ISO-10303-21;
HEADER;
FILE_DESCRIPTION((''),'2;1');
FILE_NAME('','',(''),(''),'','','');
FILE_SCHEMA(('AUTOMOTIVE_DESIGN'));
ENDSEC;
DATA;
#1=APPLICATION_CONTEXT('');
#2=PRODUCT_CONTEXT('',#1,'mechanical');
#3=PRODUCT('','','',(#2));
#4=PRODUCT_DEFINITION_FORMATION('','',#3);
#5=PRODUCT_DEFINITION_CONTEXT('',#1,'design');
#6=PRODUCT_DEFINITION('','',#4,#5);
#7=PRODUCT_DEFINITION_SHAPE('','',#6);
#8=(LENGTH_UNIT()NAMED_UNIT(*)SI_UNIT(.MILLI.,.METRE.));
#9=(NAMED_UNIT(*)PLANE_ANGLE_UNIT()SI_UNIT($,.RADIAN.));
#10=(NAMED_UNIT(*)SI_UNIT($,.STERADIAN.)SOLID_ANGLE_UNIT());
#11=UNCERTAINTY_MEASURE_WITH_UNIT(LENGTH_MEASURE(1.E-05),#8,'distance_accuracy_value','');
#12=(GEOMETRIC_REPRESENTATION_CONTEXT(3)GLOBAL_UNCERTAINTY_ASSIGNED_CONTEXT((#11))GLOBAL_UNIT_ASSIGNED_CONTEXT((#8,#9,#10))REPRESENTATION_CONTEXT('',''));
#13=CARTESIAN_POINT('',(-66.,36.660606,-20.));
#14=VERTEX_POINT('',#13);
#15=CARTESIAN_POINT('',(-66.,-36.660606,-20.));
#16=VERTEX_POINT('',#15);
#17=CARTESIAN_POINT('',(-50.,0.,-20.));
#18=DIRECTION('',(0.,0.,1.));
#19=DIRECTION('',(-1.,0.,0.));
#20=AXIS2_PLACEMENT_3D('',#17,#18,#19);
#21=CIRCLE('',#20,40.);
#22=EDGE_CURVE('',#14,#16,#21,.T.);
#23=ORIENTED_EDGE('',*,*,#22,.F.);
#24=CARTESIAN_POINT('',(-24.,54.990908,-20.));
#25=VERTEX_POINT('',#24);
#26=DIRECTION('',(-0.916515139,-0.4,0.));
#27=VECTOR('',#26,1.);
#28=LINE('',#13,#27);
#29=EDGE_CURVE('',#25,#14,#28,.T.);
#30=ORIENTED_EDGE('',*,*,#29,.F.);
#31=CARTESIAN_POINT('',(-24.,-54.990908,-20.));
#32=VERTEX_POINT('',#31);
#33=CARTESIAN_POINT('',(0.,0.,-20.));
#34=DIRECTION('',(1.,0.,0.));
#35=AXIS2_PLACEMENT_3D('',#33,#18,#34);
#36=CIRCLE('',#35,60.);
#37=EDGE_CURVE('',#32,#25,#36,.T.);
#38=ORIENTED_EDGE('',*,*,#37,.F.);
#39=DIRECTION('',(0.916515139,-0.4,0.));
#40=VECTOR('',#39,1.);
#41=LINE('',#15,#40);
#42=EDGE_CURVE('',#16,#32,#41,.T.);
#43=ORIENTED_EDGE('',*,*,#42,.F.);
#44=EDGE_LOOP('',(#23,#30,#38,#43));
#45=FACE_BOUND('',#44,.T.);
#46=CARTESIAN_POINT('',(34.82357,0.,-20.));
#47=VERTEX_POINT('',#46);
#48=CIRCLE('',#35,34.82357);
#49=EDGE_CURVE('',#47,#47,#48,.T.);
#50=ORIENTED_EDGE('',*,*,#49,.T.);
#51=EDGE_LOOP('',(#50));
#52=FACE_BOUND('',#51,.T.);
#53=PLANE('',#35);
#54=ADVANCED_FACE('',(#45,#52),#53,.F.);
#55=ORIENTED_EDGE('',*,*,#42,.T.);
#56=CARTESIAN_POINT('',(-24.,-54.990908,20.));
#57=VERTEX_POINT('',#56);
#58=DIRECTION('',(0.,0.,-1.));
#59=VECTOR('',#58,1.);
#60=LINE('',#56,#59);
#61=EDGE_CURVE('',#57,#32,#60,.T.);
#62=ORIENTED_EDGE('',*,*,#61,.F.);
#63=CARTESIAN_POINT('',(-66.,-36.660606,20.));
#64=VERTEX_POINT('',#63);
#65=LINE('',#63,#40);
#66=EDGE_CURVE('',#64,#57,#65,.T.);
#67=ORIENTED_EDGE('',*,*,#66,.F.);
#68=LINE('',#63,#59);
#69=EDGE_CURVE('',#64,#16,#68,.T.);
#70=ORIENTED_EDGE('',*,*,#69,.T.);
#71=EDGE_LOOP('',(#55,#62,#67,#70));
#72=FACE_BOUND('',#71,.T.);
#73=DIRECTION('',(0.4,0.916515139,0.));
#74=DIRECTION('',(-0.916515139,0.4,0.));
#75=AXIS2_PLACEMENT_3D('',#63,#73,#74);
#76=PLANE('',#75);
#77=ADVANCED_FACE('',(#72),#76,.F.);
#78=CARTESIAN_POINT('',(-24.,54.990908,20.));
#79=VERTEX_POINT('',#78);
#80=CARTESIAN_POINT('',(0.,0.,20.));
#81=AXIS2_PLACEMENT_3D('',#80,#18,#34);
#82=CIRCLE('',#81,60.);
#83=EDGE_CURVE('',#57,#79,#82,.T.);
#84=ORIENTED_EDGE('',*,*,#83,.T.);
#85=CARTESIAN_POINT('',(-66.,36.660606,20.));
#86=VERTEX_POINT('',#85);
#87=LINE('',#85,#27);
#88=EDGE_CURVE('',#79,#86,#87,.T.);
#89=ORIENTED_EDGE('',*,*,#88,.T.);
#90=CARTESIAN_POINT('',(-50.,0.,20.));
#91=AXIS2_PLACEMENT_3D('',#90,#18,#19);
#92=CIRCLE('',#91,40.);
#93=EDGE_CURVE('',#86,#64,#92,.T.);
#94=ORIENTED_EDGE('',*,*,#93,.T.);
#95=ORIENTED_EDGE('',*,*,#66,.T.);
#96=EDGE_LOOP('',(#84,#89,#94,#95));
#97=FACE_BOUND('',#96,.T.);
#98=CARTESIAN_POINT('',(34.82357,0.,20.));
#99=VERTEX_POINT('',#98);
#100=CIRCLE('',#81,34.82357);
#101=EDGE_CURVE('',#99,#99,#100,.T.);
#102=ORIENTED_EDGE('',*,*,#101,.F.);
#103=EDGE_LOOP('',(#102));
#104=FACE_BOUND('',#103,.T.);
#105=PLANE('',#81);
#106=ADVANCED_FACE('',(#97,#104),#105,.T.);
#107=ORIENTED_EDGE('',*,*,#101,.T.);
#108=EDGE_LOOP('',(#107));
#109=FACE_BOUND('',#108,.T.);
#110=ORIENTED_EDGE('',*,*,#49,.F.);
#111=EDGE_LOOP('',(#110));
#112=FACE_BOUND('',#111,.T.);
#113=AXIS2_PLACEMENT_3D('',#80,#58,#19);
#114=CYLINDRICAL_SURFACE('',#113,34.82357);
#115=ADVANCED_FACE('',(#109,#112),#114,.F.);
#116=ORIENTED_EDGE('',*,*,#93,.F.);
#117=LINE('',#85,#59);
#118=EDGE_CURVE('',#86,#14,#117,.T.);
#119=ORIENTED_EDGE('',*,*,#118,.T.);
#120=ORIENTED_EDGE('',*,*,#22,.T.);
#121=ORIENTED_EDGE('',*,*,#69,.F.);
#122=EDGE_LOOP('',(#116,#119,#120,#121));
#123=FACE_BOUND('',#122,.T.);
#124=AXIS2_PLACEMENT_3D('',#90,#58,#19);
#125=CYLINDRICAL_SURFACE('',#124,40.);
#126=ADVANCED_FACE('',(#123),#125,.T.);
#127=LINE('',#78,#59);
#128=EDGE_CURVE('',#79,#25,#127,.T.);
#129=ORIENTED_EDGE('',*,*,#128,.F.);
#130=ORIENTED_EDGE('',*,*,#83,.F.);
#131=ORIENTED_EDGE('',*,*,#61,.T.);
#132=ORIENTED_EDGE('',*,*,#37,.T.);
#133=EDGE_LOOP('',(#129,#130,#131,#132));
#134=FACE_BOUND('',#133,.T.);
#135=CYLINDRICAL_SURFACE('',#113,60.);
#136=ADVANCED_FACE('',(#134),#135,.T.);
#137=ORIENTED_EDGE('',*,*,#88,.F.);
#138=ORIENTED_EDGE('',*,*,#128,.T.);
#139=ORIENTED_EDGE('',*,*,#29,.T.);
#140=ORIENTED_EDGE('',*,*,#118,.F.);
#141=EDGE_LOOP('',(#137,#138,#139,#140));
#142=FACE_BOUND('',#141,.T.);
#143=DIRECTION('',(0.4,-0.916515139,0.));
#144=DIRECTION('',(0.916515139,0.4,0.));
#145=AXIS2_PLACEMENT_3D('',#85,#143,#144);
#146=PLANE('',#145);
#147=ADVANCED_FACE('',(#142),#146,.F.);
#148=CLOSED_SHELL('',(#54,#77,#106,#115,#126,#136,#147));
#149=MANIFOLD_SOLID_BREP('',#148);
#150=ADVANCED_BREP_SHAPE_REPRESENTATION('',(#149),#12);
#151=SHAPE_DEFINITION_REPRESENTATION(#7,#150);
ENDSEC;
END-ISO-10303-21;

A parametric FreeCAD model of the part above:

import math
import FreeCAD as App
import Part
import Sketcher
from FreeCAD import Vector

doc = App.newDocument("Part")
body = doc.addObject("PartDesign::Body", "Body")

sketch1 = body.newObject("Sketcher::SketchObject", "Sketch")
sketch1.AttachmentSupport = (doc.getObject("XY_Plane"), [""])
sketch1.MapMode = "FlatFace"
sketch1.addGeometry([
    Part.LineSegment(Vector(-24, 55, 0), Vector(-66, 37, 0)),
    Part.ArcOfCircle(Part.Circle(Vector(-50, 0, 0), Vector(0, 0, 1), 40), math.radians(114), math.radians(246)),
    Part.LineSegment(Vector(-66, -37, 0), Vector(-24, -55, 0)),
    Part.ArcOfCircle(Part.Circle(Vector(0, 0, 0), Vector(0, 0, 1), 60), math.radians(-114), math.radians(114)),
    Part.Circle(Vector(0, 0, 0), Vector(0, 0, 1), 35),
], False)
sketch1.addConstraint([
    Sketcher.Constraint("Tangent", 0, 2, 1, 1),
    Sketcher.Constraint("Tangent", 1, 2, 2, 1),
    Sketcher.Constraint("Tangent", 2, 2, 3, 1),
    Sketcher.Constraint("Tangent", 3, 2, 0, 1),
    Sketcher.Constraint("Coincident", 3, 3, -1, 1),
    Sketcher.Constraint("Coincident", 4, 3, -1, 1),
    Sketcher.Constraint("PointOnObject", 1, 3, -1),
    Sketcher.Constraint("Radius", 1, 40.0),
    Sketcher.Constraint("Radius", 3, 60.0),
    Sketcher.Constraint("DistanceX", 1, 3, -1, 1, 50.0),
    Sketcher.Constraint("Diameter", 4, 69.64714),
])
pad1 = body.newObject("PartDesign::Pad", "Pad")
pad1.Profile = sketch1
pad1.Length = 40
pad1.Midplane = True

doc.recompute()
